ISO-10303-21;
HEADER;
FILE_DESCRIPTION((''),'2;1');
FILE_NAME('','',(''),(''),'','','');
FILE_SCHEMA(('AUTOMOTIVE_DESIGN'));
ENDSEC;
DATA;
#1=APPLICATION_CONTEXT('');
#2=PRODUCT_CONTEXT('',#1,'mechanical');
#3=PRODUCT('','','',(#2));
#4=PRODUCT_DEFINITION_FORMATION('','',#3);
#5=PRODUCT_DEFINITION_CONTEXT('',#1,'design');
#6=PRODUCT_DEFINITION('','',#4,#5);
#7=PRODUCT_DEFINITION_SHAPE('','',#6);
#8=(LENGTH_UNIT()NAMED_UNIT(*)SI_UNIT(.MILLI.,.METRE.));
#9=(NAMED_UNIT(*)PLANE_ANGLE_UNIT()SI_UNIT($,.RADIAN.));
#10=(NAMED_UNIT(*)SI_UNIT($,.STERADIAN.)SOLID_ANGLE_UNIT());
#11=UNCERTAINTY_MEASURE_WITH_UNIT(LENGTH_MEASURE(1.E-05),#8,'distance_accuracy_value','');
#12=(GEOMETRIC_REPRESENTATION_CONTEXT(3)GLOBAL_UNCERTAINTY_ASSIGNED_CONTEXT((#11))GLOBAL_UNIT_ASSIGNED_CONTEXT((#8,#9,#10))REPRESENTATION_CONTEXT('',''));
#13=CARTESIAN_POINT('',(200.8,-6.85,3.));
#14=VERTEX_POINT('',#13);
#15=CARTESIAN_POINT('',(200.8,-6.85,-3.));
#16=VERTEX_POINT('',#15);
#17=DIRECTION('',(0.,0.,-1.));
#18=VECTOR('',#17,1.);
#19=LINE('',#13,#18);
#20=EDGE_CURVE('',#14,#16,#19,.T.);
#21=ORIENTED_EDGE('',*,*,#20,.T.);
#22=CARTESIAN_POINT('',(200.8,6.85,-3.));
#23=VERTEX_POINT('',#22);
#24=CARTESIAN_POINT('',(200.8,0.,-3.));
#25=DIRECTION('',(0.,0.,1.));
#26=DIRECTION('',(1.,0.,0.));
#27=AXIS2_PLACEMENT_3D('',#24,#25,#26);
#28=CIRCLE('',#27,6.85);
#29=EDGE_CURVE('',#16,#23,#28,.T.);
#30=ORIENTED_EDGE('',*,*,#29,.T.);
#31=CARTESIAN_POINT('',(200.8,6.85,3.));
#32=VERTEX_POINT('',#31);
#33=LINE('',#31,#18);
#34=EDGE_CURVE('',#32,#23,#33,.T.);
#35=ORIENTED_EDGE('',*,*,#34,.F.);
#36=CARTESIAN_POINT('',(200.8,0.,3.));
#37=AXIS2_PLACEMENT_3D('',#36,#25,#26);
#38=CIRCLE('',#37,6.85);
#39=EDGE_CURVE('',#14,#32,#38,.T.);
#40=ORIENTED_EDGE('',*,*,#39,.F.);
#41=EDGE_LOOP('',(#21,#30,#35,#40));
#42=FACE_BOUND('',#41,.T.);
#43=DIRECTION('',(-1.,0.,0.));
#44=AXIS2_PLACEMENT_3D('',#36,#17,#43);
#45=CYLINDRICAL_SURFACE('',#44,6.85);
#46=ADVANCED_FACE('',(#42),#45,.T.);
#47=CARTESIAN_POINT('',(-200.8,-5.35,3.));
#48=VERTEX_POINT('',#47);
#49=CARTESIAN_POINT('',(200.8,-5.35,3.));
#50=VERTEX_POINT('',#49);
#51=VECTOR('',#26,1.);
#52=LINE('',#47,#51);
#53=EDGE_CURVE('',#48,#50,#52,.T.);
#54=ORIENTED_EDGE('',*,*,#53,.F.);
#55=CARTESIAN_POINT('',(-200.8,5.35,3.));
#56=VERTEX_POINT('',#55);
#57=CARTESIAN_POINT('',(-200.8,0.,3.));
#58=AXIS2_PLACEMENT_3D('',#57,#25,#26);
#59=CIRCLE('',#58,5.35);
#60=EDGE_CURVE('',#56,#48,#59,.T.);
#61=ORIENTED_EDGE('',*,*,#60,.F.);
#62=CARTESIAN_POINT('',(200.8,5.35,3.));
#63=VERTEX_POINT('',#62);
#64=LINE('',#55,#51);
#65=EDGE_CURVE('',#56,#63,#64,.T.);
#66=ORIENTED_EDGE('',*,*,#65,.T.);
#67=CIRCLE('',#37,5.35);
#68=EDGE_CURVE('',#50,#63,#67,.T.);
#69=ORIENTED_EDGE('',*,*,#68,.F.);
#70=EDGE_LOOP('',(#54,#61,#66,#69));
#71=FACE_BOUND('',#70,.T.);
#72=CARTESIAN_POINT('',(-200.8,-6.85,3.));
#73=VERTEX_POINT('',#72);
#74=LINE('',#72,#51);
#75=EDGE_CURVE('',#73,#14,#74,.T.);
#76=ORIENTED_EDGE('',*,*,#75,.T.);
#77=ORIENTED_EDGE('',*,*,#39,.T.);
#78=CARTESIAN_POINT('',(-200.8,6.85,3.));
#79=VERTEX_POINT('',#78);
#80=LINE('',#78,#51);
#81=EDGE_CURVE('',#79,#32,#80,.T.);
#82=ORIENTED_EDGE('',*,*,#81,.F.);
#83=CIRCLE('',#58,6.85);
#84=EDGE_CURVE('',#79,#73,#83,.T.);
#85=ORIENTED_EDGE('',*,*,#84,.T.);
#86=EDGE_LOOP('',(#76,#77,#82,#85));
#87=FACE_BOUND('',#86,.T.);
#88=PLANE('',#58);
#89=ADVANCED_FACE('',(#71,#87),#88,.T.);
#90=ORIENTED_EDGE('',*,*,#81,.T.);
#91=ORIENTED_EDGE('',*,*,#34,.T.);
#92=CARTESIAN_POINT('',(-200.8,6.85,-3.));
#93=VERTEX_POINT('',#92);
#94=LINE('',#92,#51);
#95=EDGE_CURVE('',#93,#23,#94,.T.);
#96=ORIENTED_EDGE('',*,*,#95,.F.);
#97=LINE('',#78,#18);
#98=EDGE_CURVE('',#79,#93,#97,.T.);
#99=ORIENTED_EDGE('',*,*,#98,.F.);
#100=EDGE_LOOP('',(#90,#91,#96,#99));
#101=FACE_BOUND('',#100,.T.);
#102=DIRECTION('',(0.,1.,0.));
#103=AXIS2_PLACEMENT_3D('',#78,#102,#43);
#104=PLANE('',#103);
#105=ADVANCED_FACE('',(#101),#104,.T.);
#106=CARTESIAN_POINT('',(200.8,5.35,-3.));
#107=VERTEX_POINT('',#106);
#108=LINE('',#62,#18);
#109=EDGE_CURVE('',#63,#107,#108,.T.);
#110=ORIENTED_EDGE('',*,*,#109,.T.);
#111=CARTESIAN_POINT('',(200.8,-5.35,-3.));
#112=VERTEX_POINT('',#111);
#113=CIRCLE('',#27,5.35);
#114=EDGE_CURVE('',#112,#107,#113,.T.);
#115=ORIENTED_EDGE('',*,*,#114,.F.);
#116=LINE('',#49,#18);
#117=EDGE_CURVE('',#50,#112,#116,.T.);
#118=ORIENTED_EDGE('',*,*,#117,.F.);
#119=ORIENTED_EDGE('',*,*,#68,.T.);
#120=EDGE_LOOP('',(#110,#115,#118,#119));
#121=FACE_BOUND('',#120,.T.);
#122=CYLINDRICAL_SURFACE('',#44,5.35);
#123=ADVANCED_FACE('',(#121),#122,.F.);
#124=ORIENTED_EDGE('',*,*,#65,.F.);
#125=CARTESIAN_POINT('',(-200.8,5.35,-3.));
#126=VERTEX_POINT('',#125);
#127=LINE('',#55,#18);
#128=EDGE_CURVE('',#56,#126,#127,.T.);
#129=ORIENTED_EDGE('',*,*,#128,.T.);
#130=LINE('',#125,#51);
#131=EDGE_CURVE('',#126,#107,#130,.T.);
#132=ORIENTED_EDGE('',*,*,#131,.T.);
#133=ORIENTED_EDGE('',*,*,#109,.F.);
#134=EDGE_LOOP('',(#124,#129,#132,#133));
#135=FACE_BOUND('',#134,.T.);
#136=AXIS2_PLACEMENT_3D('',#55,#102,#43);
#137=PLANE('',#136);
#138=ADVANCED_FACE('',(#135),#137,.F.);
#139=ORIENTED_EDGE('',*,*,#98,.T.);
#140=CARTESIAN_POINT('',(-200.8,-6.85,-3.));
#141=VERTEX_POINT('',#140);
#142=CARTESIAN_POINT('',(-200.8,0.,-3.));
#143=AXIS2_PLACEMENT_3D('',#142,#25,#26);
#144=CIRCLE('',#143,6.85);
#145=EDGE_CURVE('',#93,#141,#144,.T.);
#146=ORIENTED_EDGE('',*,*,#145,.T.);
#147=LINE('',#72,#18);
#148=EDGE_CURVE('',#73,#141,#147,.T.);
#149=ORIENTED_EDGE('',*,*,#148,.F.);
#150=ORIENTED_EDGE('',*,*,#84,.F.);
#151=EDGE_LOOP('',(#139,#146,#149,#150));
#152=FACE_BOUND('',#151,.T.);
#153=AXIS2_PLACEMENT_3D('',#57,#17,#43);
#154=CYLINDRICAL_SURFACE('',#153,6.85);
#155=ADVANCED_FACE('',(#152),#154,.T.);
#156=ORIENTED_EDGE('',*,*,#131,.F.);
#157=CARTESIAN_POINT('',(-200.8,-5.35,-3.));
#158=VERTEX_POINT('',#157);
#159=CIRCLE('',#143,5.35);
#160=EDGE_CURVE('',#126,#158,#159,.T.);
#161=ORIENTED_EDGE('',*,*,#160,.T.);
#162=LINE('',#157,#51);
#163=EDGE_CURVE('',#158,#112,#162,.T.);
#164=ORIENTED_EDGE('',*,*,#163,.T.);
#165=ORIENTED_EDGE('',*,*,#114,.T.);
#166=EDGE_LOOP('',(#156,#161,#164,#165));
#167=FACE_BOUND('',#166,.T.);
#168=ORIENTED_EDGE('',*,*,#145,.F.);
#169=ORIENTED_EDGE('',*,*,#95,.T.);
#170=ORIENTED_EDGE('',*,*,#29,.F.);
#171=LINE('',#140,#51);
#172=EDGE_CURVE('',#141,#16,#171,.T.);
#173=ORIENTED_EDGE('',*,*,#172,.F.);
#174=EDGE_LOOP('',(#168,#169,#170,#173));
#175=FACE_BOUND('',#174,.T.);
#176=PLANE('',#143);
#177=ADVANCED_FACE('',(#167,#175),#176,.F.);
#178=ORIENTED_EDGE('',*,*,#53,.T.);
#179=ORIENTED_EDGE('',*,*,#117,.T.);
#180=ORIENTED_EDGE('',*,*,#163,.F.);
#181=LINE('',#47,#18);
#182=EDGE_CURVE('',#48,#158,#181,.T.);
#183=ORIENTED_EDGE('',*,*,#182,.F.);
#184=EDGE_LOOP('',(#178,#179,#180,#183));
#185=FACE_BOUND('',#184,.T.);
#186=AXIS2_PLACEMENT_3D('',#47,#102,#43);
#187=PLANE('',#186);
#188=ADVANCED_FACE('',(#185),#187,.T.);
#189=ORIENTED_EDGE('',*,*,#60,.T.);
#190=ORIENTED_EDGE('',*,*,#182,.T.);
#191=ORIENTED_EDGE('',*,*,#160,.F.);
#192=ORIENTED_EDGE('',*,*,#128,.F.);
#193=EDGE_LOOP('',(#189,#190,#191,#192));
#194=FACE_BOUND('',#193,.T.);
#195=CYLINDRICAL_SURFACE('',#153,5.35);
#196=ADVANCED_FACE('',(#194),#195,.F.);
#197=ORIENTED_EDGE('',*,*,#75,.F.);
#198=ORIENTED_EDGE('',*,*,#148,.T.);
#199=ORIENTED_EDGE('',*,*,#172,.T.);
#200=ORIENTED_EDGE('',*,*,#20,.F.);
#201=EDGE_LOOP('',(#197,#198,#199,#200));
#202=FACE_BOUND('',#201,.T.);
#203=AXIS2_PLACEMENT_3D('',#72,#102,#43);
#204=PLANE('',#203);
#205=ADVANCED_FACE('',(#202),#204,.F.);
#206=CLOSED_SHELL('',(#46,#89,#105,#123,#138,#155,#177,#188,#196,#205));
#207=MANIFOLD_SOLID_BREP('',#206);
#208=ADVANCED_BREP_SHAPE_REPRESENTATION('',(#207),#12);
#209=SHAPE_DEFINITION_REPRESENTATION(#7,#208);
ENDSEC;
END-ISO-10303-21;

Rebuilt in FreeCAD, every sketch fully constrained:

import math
import FreeCAD as App
import Part
import Sketcher
from FreeCAD import Vector
Q = App.Units.Quantity

doc = App.newDocument("Part")
body = doc.addObject("PartDesign::Body", "Body")

sketch1 = doc.addObject("Sketcher::SketchObject", "Sketch")
body.addObject(sketch1)
sketch1.AttachmentSupport = (doc.XY_Plane, [""])
sketch1.MapMode = "FlatFace"
sketch1.addGeometry(Part.LineSegment(Vector(-201, -7, 0), Vector(201, -7, 0)), False)
sketch1.addGeometry(Part.ArcOfCircle(Part.Circle(Vector(201, 0, 0), Vector(0, 0, 1), 7), math.radians(-90), math.radians(90)), False)
sketch1.addGeometry(Part.LineSegment(Vector(201, 7, 0), Vector(-201, 7, 0)), False)
sketch1.addGeometry(Part.ArcOfCircle(Part.Circle(Vector(-201, 0, 0), Vector(0, 0, 1), 7), math.radians(90), math.radians(270)), False)
sketch1.addGeometry(Part.LineSegment(Vector(201, -5, 0), Vector(-201, -5, 0)), False)
sketch1.addGeometry(Part.ArcOfCircle(Part.Circle(Vector(-201, 0, 0), Vector(0, 0, 1), 5), math.radians(90), math.radians(270)), False)
sketch1.addGeometry(Part.LineSegment(Vector(-201, 5, 0), Vector(201, 5, 0)), False)
sketch1.addGeometry(Part.ArcOfCircle(Part.Circle(Vector(201, 0, 0), Vector(0, 0, 1), 5), math.radians(-90), math.radians(90)), False)
sketch1.addConstraint(Sketcher.Constraint("Tangent", 0, 2, 1, 1))
sketch1.addConstraint(Sketcher.Constraint("Tangent", 1, 2, 2, 1))
sketch1.addConstraint(Sketcher.Constraint("Tangent", 2, 2, 3, 1))
sketch1.addConstraint(Sketcher.Constraint("Tangent", 3, 2, 0, 1))
sketch1.addConstraint(Sketcher.Constraint("Tangent", 4, 2, 5, 2))
sketch1.addConstraint(Sketcher.Constraint("Tangent", 5, 1, 6, 1))
sketch1.addConstraint(Sketcher.Constraint("Tangent", 6, 2, 7, 2))
sketch1.addConstraint(Sketcher.Constraint("Tangent", 7, 1, 4, 1))
sketch1.addConstraint(Sketcher.Constraint("Horizontal", 0))
sketch1.addConstraint(Sketcher.Constraint("Horizontal", 2))
sketch1.addConstraint(Sketcher.Constraint("Horizontal", 4))
sketch1.addConstraint(Sketcher.Constraint("Horizontal", 6))
sketch1.addConstraint(Sketcher.Constraint("Coincident", 5, 3, 3, 3))
sketch1.addConstraint(Sketcher.Constraint("Symmetric", 1, 3, 3, 3, -1, 1))
sketch1.addConstraint(Sketcher.Constraint("Vertical", 7, 3, 0, 2))
sketch1.addConstraint(Sketcher.Constraint("Radius", 1, Q("6.85 mm")))
sketch1.addConstraint(Sketcher.Constraint("Radius", 5, Q("5.35 mm")))
sketch1.addConstraint(Sketcher.Constraint("DistanceX", 0, 1, 0, 2, Q("401.6 mm")))
pad1 = doc.addObject("PartDesign::Pad", "Pad")
body.addObject(pad1)
pad1.Profile = sketch1
pad1.Length = 6
pad1.Midplane = True

doc.recompute()
